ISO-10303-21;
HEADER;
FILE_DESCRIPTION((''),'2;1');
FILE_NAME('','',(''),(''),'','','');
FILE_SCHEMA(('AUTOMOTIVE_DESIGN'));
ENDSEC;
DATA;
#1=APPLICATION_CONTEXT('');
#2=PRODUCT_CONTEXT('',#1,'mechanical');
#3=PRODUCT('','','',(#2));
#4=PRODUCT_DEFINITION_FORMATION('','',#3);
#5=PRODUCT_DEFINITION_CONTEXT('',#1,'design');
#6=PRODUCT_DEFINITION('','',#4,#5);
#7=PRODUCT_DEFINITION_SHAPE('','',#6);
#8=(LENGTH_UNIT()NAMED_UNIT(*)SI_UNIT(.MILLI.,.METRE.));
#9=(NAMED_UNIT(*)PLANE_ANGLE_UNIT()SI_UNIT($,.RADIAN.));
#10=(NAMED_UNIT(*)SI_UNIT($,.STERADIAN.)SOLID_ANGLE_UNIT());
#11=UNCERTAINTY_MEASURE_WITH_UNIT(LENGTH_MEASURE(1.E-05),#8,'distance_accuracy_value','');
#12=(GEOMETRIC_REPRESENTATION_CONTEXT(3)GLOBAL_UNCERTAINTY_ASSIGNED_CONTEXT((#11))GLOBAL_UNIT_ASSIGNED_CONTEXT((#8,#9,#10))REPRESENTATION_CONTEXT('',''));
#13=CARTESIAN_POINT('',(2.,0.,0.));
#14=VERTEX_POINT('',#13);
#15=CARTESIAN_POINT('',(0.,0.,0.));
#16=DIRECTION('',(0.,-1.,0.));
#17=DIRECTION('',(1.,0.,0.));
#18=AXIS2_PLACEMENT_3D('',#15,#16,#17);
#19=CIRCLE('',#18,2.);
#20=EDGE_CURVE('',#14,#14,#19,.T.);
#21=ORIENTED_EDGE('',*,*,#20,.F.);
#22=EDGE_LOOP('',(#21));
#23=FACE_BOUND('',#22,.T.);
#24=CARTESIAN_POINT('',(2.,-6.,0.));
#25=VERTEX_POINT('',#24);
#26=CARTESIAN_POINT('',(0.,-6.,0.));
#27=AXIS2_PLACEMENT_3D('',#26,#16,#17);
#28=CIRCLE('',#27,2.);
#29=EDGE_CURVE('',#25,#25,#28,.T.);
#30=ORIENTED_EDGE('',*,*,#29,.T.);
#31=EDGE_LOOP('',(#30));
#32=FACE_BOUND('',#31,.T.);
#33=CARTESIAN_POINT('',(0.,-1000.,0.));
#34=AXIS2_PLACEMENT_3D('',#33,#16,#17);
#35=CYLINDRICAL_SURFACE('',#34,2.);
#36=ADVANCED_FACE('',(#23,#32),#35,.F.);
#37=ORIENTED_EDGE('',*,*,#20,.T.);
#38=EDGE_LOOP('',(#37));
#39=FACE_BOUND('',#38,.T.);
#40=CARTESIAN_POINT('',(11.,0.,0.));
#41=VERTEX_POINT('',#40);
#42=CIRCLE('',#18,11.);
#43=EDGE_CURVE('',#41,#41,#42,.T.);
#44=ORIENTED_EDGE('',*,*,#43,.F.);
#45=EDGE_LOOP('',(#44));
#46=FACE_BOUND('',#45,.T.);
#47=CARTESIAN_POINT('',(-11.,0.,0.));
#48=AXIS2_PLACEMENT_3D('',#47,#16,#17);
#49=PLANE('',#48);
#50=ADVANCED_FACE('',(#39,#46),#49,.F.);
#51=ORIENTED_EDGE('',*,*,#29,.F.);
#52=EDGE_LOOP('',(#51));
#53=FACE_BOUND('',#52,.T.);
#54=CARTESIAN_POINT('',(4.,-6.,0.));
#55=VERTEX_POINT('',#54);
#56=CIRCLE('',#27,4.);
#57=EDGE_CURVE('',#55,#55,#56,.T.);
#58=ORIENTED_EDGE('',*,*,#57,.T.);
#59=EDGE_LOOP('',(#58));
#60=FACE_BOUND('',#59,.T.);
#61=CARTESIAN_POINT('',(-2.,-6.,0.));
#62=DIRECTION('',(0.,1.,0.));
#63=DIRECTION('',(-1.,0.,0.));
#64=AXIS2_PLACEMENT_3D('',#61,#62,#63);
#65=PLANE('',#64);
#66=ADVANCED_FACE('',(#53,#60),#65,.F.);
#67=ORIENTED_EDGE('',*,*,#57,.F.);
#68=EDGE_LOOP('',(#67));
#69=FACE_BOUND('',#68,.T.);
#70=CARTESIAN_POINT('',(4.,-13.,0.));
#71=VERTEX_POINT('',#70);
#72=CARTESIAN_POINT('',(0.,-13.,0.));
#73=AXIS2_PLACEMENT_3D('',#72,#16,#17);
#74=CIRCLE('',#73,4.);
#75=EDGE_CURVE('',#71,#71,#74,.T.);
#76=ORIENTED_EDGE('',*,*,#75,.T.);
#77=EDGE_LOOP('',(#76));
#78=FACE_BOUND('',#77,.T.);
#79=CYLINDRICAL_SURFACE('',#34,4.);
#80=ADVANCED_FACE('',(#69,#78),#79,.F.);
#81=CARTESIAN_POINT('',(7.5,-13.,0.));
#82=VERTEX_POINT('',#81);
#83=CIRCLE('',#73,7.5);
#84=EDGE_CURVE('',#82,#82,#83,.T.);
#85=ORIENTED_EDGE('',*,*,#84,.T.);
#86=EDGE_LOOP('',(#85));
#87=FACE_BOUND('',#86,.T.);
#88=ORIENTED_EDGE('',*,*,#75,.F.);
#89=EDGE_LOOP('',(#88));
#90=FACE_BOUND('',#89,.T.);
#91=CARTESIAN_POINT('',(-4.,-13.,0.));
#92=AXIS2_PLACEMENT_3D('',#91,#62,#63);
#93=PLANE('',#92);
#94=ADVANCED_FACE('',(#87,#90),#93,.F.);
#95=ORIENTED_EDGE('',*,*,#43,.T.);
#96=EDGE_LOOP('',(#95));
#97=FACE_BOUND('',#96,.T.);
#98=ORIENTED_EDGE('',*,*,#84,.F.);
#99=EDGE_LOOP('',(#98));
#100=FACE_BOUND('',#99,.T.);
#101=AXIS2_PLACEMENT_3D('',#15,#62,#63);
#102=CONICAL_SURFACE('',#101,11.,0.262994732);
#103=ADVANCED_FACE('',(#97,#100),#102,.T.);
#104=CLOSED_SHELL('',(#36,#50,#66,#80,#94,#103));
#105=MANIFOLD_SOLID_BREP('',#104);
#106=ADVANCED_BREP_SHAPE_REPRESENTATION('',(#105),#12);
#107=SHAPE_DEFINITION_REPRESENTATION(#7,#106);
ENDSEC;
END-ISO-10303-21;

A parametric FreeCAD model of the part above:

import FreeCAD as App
import Part
import Sketcher
from FreeCAD import Vector
Q = App.Units.Quantity

doc = App.newDocument("Part")
params = doc.addObject("Spreadsheet::Sheet", "Params")
for row, (alias, value) in enumerate([
    ("sketch1_width", "9 mm"),
    ("sketch1_width2", "2 mm"),
    ("sketch1_height", "7 mm"),
    ("sketch1_height2", "6 mm"),
    ("sketch1_width3", "3.5 mm"),
    ("revolution_angle", "360 deg"),
], start=1):
    params.set(f"A{row}", alias)
    params.set(f"B{row}", "=" + value)
    params.setAlias(f"B{row}", alias)

body = doc.addObject("PartDesign::Body", "Body")

# Sketch on XY plane
sketch1 = doc.addObject("Sketcher::SketchObject", "Sketch")
body.addObject(sketch1)
sketch1.AttachmentSupport = (doc.XY_Plane, [""])
sketch1.MapMode = "FlatFace"
sketch1.addGeometry([
    Part.LineSegment(Vector(-2, 0, 0), Vector(-11, 0, 0)),  # 0
    Part.LineSegment(Vector(-11, 0, 0), Vector(-7.5, -13, 0)),  # 1
    Part.LineSegment(Vector(-7.5, -13, 0), Vector(-4, -13, 0)),  # 2
    Part.LineSegment(Vector(-4, -13, 0), Vector(-4, -6, 0)),  # 3
    Part.LineSegment(Vector(-4, -6, 0), Vector(-2, -6, 0)),  # 4
    Part.LineSegment(Vector(-2, -6, 0), Vector(-2, 0, 0)),  # 5
], False)
sketch1.addConstraint([
    Sketcher.Constraint("Coincident", 0, 2, 1, 1),
    Sketcher.Constraint("Coincident", 1, 2, 2, 1),
    Sketcher.Constraint("Coincident", 2, 2, 3, 1),
    Sketcher.Constraint("Coincident", 3, 2, 4, 1),
    Sketcher.Constraint("Coincident", 4, 2, 5, 1),
    Sketcher.Constraint("Coincident", 5, 2, 0, 1),
    Sketcher.Constraint("Horizontal", 0),
    Sketcher.Constraint("Horizontal", 2),
    Sketcher.Constraint("Vertical", 3),
    Sketcher.Constraint("Horizontal", 4),
    Sketcher.Constraint("Vertical", 5),
    Sketcher.Constraint("PointOnObject", 0, 2, -1),
    Sketcher.Constraint("DistanceX", 0, 2, 0, 1, Q("9 mm")),
    Sketcher.Constraint("DistanceX", 4, 1, 4, 2, Q("2 mm")),
    Sketcher.Constraint("DistanceY", 3, 1, 3, 2, Q("7 mm")),
    Sketcher.Constraint("DistanceY", 5, 1, 5, 2, Q("6 mm")),
    Sketcher.Constraint("DistanceX", 2, 1, 2, 2, Q("3.5 mm")),
    Sketcher.Constraint("DistanceX", 0, 2, -1, 1, Q("11 mm")),
])
sketch1.setExpression("Constraints[12]", "Params.sketch1_width")
sketch1.setExpression("Constraints[13]", "Params.sketch1_width2")
sketch1.setExpression("Constraints[14]", "Params.sketch1_height")
sketch1.setExpression("Constraints[15]", "Params.sketch1_height2")
sketch1.setExpression("Constraints[16]", "Params.sketch1_width3")
revolution = doc.addObject("PartDesign::Revolution", "Revolution")
body.addObject(revolution)
revolution.Profile = sketch1
revolution.ReferenceAxis = (sketch1, ["V_Axis"])
revolution.setExpression("Angle", "Params.revolution_angle")

doc.recompute()
